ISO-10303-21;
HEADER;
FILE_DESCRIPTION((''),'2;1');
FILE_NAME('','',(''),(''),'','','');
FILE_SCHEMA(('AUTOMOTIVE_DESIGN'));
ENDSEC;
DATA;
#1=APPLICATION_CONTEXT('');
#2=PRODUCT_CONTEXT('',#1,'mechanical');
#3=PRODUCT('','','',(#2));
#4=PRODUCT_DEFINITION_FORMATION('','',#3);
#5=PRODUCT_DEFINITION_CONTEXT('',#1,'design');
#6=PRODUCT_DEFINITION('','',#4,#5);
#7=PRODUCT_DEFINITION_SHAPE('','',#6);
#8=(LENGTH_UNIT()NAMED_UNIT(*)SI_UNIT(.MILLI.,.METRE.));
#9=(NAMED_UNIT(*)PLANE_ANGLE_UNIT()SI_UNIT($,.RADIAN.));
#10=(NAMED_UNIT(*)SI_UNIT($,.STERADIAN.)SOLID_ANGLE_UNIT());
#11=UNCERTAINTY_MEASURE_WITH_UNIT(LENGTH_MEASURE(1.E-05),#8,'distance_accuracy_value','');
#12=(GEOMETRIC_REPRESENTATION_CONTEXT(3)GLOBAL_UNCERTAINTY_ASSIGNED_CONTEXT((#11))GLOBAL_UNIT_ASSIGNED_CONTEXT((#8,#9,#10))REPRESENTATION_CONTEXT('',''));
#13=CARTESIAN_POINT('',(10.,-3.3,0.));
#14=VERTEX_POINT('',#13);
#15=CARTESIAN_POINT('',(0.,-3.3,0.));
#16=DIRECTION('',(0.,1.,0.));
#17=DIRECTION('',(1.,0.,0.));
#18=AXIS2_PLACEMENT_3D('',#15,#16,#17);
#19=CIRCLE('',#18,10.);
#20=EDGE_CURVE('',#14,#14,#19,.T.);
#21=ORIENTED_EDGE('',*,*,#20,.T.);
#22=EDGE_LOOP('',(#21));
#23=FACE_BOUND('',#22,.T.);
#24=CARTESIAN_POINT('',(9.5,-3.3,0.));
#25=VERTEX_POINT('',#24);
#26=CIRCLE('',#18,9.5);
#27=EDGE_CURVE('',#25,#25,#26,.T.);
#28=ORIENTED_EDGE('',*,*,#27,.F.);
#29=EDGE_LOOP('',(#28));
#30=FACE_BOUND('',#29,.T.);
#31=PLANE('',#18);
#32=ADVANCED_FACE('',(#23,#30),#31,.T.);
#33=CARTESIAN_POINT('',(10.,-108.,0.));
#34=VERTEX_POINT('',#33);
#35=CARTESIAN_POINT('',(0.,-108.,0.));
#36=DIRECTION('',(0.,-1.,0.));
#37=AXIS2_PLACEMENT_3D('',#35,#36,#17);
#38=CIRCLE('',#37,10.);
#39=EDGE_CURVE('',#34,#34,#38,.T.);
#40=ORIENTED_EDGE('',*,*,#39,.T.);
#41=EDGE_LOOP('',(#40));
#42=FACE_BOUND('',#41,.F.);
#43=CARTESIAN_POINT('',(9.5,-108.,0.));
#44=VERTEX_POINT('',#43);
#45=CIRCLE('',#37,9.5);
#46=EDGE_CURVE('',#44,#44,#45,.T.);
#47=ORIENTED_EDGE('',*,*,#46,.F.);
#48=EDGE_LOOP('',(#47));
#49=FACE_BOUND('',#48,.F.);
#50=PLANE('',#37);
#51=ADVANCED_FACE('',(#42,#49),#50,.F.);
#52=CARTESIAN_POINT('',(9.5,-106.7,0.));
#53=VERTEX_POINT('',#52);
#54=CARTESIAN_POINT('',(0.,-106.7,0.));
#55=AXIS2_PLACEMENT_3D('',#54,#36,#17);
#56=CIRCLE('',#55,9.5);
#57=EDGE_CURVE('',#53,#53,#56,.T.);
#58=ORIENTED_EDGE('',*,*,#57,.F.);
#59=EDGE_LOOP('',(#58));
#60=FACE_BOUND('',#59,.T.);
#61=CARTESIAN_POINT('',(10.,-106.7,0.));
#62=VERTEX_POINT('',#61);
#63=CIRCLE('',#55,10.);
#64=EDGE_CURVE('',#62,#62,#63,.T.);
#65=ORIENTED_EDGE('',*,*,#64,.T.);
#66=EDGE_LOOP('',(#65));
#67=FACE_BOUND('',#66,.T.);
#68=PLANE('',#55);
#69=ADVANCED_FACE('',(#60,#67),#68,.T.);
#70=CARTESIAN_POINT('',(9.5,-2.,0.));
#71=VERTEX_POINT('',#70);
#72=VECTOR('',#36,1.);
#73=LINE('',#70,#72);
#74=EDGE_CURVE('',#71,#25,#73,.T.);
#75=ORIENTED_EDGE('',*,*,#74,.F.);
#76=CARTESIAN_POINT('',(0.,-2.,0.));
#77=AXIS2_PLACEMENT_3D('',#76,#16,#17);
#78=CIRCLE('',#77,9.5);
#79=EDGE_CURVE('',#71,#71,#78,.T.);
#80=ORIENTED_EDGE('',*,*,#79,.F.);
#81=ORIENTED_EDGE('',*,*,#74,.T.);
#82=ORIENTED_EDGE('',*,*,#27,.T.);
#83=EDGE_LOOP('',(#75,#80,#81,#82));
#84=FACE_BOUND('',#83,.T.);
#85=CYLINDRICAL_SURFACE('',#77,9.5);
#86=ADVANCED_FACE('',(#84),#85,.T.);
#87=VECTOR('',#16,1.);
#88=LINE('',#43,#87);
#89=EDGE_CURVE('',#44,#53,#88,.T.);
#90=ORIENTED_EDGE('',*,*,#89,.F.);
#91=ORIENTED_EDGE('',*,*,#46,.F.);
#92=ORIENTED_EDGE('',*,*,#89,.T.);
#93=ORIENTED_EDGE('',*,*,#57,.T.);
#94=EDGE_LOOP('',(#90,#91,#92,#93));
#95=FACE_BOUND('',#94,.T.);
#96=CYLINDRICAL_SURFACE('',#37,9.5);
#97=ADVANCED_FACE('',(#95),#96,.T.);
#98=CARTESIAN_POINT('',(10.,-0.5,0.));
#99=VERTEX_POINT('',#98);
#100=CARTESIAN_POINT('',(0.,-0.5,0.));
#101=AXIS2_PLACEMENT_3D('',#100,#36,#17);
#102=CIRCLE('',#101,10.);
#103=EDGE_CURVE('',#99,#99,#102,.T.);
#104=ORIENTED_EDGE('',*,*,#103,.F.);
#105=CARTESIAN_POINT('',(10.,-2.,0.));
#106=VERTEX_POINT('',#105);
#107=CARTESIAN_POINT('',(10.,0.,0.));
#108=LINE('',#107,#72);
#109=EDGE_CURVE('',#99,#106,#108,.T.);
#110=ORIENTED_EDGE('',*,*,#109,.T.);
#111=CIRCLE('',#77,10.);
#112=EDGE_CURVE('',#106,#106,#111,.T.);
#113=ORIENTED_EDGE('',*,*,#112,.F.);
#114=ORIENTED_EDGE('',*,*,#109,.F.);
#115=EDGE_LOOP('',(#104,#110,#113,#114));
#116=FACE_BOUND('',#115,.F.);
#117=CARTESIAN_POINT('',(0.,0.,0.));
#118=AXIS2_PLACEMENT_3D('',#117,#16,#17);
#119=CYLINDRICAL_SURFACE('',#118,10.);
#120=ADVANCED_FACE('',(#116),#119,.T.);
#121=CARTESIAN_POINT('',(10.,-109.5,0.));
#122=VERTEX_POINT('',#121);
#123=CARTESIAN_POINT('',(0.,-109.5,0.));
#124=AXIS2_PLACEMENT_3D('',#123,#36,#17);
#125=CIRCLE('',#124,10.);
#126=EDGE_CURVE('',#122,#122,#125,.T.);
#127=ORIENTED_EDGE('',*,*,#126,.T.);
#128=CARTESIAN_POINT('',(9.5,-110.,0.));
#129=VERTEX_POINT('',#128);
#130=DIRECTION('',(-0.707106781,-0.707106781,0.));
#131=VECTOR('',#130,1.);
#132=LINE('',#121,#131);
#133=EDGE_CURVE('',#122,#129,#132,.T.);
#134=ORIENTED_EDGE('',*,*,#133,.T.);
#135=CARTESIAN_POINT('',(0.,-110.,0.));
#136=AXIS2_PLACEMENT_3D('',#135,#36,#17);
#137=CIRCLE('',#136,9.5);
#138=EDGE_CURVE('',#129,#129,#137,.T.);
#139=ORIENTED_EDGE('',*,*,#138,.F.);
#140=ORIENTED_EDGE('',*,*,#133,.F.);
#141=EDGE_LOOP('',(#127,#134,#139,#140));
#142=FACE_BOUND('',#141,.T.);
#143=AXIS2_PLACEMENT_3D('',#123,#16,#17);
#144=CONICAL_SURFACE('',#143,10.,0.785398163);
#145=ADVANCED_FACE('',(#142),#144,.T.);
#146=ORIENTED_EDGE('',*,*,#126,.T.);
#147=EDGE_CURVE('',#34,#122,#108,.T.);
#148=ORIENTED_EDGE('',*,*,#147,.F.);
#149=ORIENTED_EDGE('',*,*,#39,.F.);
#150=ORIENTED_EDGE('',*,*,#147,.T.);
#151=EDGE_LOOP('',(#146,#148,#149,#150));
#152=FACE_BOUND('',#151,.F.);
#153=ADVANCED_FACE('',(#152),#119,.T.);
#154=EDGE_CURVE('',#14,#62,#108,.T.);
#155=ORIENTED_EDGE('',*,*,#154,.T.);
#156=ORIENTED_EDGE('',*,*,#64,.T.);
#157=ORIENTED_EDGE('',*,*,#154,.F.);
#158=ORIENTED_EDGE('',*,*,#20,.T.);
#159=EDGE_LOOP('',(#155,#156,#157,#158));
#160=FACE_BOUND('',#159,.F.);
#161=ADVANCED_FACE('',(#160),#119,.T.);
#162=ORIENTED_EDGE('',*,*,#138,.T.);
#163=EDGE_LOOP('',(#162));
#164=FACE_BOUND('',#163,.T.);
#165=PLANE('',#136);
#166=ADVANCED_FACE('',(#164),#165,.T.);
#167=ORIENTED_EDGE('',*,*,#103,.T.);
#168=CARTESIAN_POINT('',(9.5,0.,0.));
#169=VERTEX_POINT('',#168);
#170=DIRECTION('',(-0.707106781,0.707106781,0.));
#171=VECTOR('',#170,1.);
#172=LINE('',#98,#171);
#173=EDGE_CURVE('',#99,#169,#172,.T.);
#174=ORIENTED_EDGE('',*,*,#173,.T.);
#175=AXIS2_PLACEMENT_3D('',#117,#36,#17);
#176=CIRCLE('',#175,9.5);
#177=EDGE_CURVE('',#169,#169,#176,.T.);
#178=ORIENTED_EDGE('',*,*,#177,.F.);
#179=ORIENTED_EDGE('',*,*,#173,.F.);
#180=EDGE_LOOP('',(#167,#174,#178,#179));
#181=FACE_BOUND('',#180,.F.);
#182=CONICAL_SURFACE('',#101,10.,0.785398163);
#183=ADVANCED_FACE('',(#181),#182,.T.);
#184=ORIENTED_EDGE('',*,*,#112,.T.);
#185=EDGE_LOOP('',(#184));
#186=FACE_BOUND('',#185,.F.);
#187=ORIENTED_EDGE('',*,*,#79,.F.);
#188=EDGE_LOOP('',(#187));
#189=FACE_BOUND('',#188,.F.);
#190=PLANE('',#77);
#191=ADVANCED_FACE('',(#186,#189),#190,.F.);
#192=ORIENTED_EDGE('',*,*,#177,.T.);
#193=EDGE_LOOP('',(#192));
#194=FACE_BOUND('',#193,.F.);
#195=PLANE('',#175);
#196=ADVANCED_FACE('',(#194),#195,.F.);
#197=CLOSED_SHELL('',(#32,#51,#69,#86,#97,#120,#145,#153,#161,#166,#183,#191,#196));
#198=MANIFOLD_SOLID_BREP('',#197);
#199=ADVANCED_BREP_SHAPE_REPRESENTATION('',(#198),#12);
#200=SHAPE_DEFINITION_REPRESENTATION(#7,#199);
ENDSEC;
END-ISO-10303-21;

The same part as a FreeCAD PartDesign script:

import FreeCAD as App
import Part
import Sketcher


def edges_at(feature, points):
    """Names of the edges that pass closest to the given points."""
    edges = feature.Shape.Edges
    near = lambda p: min(range(len(edges)), key=lambda i: edges[i].distToShape(Part.Vertex(*p))[0])
    return sorted({f"Edge{near(p) + 1}" for p in points})

doc = App.newDocument("Part")
body = doc.addObject("PartDesign::Body", "Body")

sketch1 = doc.addObject("Sketcher::SketchObject", "Sketch")
body.addObject(sketch1)
sketch1.AttachmentSupport = (doc.XZ_Plane, [""])
sketch1.MapMode = "FlatFace"
sketch1.addGeometry(Part.Circle(App.Vector(0, 0, 0), App.Vector(0, 0, 1), 10), False)
sketch1.addConstraint([
    Sketcher.Constraint("Coincident", 0, 3, -1, 1),
    Sketcher.Constraint("Diameter", 0, 20.0),
])
pad1 = doc.addObject("PartDesign::Pad", "Pad")
body.addObject(pad1)
pad1.Profile = sketch1
pad1.Length = 110

sketch2 = doc.addObject("Sketcher::SketchObject", "Sketch001")
body.addObject(sketch2)
sketch2.AttachmentSupport = (doc.XZ_Plane, [""])
sketch2.MapMode = "FlatFace"
sketch2.AttachmentOffset = App.Placement(App.Vector(0, 0, 108), App.Rotation())
sketch2.addGeometry([
    Part.Circle(App.Vector(0, 0, 0), App.Vector(0, 0, 1), 10),
    Part.Circle(App.Vector(0, 0, 0), App.Vector(0, 0, 1), 9.5),
], False)
sketch2.addConstraint([
    Sketcher.Constraint("Coincident", 0, 3, -1, 1),
    Sketcher.Constraint("Coincident", 1, 3, -1, 1),
    Sketcher.Constraint("Diameter", 0, 20.0),
    Sketcher.Constraint("Diameter", 1, 19.0),
])
pocket1 = doc.addObject("PartDesign::Pocket", "Pocket")
body.addObject(pocket1)
pocket1.Profile = sketch2
pocket1.Length = 1.3

sketch3 = doc.addObject("Sketcher::SketchObject", "Sketch002")
body.addObject(sketch3)
sketch3.AttachmentSupport = (doc.XZ_Plane, [""])
sketch3.MapMode = "FlatFace"
sketch3.AttachmentOffset = App.Placement(App.Vector(0, 0, 2), App.Rotation())
sketch3.addGeometry([
    Part.Circle(App.Vector(0, 0, 0), App.Vector(0, 0, 1), 10),
    Part.Circle(App.Vector(0, 0, 0), App.Vector(0, 0, 1), 9.5),
], False)
sketch3.addConstraint([
    Sketcher.Constraint("Coincident", 0, 3, -1, 1),
    Sketcher.Constraint("Coincident", 1, 3, -1, 1),
    Sketcher.Constraint("Diameter", 0, 20.0),
    Sketcher.Constraint("Diameter", 1, 19.0),
])
pocket2 = doc.addObject("PartDesign::Pocket", "Pocket001")
body.addObject(pocket2)
pocket2.Profile = sketch3
pocket2.Length = 1.3
pocket2.Reversed = True
doc.recompute()

chamfer = doc.addObject("PartDesign::Chamfer", "Chamfer")
body.addObject(chamfer)
chamfer.Base = (pocket2, edges_at(pocket2, [(-10, -110, 0), (-10, 0, 0)]))
chamfer.Size = 0.5

doc.recompute()
